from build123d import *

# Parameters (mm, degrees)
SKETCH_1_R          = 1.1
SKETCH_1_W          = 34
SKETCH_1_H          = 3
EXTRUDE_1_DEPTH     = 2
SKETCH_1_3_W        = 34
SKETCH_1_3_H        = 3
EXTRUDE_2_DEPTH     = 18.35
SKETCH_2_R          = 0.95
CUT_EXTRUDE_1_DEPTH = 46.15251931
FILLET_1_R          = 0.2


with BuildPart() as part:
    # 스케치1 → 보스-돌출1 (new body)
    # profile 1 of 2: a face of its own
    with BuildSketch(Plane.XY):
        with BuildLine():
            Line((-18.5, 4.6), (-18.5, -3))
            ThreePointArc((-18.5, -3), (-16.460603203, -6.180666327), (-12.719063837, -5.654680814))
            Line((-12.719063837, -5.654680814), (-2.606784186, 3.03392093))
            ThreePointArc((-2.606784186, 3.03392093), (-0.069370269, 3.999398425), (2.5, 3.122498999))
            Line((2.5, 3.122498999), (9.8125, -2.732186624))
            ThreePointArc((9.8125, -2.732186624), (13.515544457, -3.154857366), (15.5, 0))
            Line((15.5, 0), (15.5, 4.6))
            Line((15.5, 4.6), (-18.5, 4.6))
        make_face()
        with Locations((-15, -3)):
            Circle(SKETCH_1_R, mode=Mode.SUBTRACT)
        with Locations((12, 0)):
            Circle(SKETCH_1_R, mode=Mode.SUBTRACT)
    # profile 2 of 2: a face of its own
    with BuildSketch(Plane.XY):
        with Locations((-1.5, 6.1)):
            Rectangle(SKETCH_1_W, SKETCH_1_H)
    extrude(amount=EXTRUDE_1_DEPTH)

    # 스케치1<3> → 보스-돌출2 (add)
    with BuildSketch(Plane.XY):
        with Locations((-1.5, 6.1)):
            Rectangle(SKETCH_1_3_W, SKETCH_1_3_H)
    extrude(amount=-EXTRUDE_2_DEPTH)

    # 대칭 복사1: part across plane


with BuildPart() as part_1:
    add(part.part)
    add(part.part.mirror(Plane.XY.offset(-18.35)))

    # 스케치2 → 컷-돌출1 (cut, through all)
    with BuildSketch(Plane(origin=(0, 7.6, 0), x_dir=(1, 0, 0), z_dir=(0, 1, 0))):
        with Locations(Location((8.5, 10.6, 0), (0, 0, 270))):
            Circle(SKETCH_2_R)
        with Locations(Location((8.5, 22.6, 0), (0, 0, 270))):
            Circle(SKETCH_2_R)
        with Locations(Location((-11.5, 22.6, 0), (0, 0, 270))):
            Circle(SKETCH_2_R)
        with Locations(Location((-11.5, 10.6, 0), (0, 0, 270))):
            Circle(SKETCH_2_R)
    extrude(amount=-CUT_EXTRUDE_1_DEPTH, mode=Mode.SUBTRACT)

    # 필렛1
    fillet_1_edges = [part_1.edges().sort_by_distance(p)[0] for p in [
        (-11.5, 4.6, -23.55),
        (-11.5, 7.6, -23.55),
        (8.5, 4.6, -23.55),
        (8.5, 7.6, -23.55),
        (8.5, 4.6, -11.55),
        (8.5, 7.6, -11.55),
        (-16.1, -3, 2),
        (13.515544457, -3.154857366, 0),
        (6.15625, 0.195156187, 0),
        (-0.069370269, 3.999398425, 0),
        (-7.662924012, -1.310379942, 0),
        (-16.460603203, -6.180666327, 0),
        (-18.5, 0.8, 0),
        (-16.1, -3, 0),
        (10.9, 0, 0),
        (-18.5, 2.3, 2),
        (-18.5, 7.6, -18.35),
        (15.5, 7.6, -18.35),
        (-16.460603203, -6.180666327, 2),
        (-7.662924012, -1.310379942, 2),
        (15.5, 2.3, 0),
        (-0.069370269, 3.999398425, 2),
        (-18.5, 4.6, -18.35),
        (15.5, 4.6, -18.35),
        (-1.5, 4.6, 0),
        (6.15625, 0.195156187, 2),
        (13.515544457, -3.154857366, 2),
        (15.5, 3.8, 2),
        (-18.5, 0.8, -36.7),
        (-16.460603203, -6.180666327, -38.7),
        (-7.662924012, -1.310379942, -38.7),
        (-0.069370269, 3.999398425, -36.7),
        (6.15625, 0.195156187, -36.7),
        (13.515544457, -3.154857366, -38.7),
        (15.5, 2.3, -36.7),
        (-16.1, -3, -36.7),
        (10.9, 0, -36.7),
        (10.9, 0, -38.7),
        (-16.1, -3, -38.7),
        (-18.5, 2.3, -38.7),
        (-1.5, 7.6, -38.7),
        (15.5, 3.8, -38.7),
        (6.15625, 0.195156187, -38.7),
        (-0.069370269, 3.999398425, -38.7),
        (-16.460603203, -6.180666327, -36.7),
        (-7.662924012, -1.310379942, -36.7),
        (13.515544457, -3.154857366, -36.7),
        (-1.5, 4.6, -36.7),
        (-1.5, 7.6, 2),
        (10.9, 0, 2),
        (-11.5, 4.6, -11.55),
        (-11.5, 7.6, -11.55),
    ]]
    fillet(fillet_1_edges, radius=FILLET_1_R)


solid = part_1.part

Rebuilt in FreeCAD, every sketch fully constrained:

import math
import FreeCAD as App
import Part
import Sketcher
from FreeCAD import Vector


def add_polygon(sketch, points):
    """Adds a closed chain of lines whose ends are joined by coincident constraints."""
    first, n = sketch.GeometryCount, len(points)
    for a, b in zip(points, points[1:] + points[:1]):
        sketch.addGeometry(Part.LineSegment(App.Vector(*a, 0), App.Vector(*b, 0)), False)
    for i in range(n):
        sketch.addConstraint(Sketcher.Constraint("Coincident", first + i, 2, first + (i + 1) % n, 1))

doc = App.newDocument("Part")
body = doc.addObject("PartDesign::Body", "Body")

sketch1 = body.newObject("Sketcher::SketchObject", "Sketch")
sketch1.AttachmentSupport = (doc.getObject("XY_Plane"), [""])
sketch1.MapMode = "FlatFace"
sketch1.addGeometry(Part.ArcOfCircle(Part.Circle(Vector(-15, -3, 0), Vector(0, 0, 1), 3.5), math.radians(180), math.radians(310.669599)), False)
sketch1.addGeometry(Part.LineSegment(Vector(-12.719064, -5.654681, 0), Vector(-2.606784, 3.033921, 0)), False)
sketch1.addGeometry(Part.ArcOfCircle(Part.Circle(Vector(0, 0, 0), Vector(0, 0, 1), 4), math.radians(51.317813), math.radians(130.669599)), False)
sketch1.addGeometry(Part.LineSegment(Vector(2.5, 3.122499, 0), Vector(9.8125, -2.732187, 0)), False)
sketch1.addGeometry(Part.ArcOfCircle(Part.Circle(Vector(12, 0, 0), Vector(0, 0, 1), 3.5), math.radians(-128.682187), math.radians(0)), False)
sketch1.addGeometry(Part.LineSegment(Vector(15.5, 0, 0), Vector(15.5, 7.6, 0)), False)
sketch1.addGeometry(Part.LineSegment(Vector(15.5, 7.6, 0), Vector(-18.5, 7.6, 0)), False)
sketch1.addGeometry(Part.LineSegment(Vector(-18.5, 7.6, 0), Vector(-18.5, -3, 0)), False)
sketch1.addGeometry(Part.Circle(Vector(-15, -3, 0), Vector(0, 0, 1), 1.1), False)
sketch1.addGeometry(Part.Circle(Vector(12, 0, 0), Vector(0, 0, 1), 1.1), False)
sketch1.addConstraint(Sketcher.Constraint("Tangent", 0, 2, 1, 1))
sketch1.addConstraint(Sketcher.Constraint("Tangent", 1, 2, 2, 2))
sketch1.addConstraint(Sketcher.Constraint("Tangent", 2, 1, 3, 1))
sketch1.addConstraint(Sketcher.Constraint("Tangent", 3, 2, 4, 1))
sketch1.addConstraint(Sketcher.Constraint("Tangent", 4, 2, 5, 1))
sketch1.addConstraint(Sketcher.Constraint("Coincident", 5, 2, 6, 1))
sketch1.addConstraint(Sketcher.Constraint("Coincident", 6, 2, 7, 1))
sketch1.addConstraint(Sketcher.Constraint("Tangent", 7, 2, 0, 1))
sketch1.addConstraint(Sketcher.Constraint("Vertical", 5))
sketch1.addConstraint(Sketcher.Constraint("Horizontal", 6))
sketch1.addConstraint(Sketcher.Constraint("Vertical", 7))
sketch1.addConstraint(Sketcher.Constraint("Coincident", 2, 3, -1, 1))
sketch1.addConstraint(Sketcher.Constraint("Coincident", 8, 3, 0, 3))
sketch1.addConstraint(Sketcher.Constraint("Coincident", 9, 3, 4, 3))
sketch1.addConstraint(Sketcher.Constraint("Equal", 0, 4))
sketch1.addConstraint(Sketcher.Constraint("Equal", 8, 9))
sketch1.addConstraint(Sketcher.Constraint("PointOnObject", 4, 3, -1))
sketch1.addConstraint(Sketcher.Constraint("Radius", 2, 4.0))
sketch1.addConstraint(Sketcher.Constraint("Diameter", 8, 2.2))
sketch1.addConstraint(Sketcher.Constraint("Radius", 0, 3.5))
sketch1.addConstraint(Sketcher.Constraint("DistanceX", 6, 2, 6, 1, 34.0))
sketch1.addConstraint(Sketcher.Constraint("DistanceY", 5, 1, 5, 2, 7.6))
sketch1.addConstraint(Sketcher.Constraint("DistanceY", 7, 2, 7, 1, 10.6))
sketch1.addConstraint(Sketcher.Constraint("DistanceX", 0, 3, -1, 1, 15.0))
pad1 = body.newObject("PartDesign::Pad", "Pad")
pad1.Profile = sketch1
pad1.Length = 2

sketch2 = body.newObject("Sketcher::SketchObject", "Sketch001")
sketch2.AttachmentSupport = (doc.getObject("XY_Plane"), [""])
sketch2.MapMode = "FlatFace"
add_polygon(sketch2, [(-18.5, 7.6), (-18.5, 4.6), (15.5, 4.6), (15.5, 7.6)])
sketch2.addConstraint(Sketcher.Constraint("Vertical", 0))
sketch2.addConstraint(Sketcher.Constraint("Horizontal", 1))
sketch2.addConstraint(Sketcher.Constraint("Vertical", 2))
sketch2.addConstraint(Sketcher.Constraint("Horizontal", 3))
sketch2.addConstraint(Sketcher.Constraint("DistanceX", 1, 1, 1, 2, 34.0))
sketch2.addConstraint(Sketcher.Constraint("DistanceY", 0, 2, 0, 1, 3.0))
sketch2.addConstraint(Sketcher.Constraint("DistanceX", 0, 2, -1, 1, 18.5))
sketch2.addConstraint(Sketcher.Constraint("DistanceY", -1, 1, 0, 2, 4.6))
pad2 = body.newObject("PartDesign::Pad", "Pad001")
pad2.Profile = sketch2
pad2.Length = 18.35
pad2.Reversed = True
body2 = doc.addObject("PartDesign::Body", "Body001")
doc.recompute()

body2.BaseFeature = body
doc.recompute()

mirroring = doc.addObject("Part::Mirroring", "Mirroring")
mirroring.Source = body
mirroring.Base = Vector(0, 0, -18.35)
mirroring.Normal = Vector(0, 0, 1)
body3 = doc.addObject("PartDesign::Body", "Body002")
body3.BaseFeature = mirroring
boolean = body2.newObject("PartDesign::Boolean", "Boolean")
boolean.Type = "Fuse"
boolean.addObjects([body3])
doc.recompute()

sketch3 = body2.newObject("Sketcher::SketchObject", "Sketch002")
sketch3.AttachmentSupport = (doc.getObject("XZ_Plane001"), [""])
sketch3.MapMode = "FlatFace"
sketch3.AttachmentOffset = App.Placement(Vector(0, 0, -7.6), App.Rotation())
sketch3.addGeometry(Part.Circle(Vector(8.5, -10.6, 0), Vector(0, 0, 1), 0.95), False)
sketch3.addGeometry(Part.Circle(Vector(8.5, -22.6, 0), Vector(0, 0, 1), 0.95), False)
sketch3.addGeometry(Part.Circle(Vector(-11.5, -22.6, 0), Vector(0, 0, 1), 0.95), False)
sketch3.addGeometry(Part.Circle(Vector(-11.5, -10.6, 0), Vector(0, 0, 1), 0.95), False)
sketch3.addConstraint(Sketcher.Constraint("Equal", 0, 1))
sketch3.addConstraint(Sketcher.Constraint("Equal", 1, 2))
sketch3.addConstraint(Sketcher.Constraint("Equal", 2, 3))
sketch3.addConstraint(Sketcher.Constraint("Horizontal", 1, 3, 2, 3))
sketch3.addConstraint(Sketcher.Constraint("Horizontal", 0, 3, 3, 3))
sketch3.addConstraint(Sketcher.Constraint("Vertical", 0, 3, 1, 3))
sketch3.addConstraint(Sketcher.Constraint("Vertical", 2, 3, 3, 3))
sketch3.addConstraint(Sketcher.Constraint("Diameter", 0, 1.9))
sketch3.addConstraint(Sketcher.Constraint("DistanceY", 1, 3, 0, 3, 12.0))
sketch3.addConstraint(Sketcher.Constraint("DistanceX", 2, 3, 1, 3, 20.0))
sketch3.addConstraint(Sketcher.Constraint("DistanceX", -1, 1, 0, 3, 8.5))
sketch3.addConstraint(Sketcher.Constraint("DistanceY", 0, 3, -1, 1, 10.6))
pocket1 = body2.newObject("PartDesign::Pocket", "Pocket")
pocket1.Profile = sketch3
pocket1.Type = "ThroughAll"
pocket1.Reversed = True
doc.recompute()

fillet = body2.newObject("PartDesign::Fillet", "Fillet")
fillet.Base = (pocket1, ["Edge1"])
fillet.UseAllEdges = True
fillet.Radius = 0.2
mirroring.Visibility = False

doc.recompute()
